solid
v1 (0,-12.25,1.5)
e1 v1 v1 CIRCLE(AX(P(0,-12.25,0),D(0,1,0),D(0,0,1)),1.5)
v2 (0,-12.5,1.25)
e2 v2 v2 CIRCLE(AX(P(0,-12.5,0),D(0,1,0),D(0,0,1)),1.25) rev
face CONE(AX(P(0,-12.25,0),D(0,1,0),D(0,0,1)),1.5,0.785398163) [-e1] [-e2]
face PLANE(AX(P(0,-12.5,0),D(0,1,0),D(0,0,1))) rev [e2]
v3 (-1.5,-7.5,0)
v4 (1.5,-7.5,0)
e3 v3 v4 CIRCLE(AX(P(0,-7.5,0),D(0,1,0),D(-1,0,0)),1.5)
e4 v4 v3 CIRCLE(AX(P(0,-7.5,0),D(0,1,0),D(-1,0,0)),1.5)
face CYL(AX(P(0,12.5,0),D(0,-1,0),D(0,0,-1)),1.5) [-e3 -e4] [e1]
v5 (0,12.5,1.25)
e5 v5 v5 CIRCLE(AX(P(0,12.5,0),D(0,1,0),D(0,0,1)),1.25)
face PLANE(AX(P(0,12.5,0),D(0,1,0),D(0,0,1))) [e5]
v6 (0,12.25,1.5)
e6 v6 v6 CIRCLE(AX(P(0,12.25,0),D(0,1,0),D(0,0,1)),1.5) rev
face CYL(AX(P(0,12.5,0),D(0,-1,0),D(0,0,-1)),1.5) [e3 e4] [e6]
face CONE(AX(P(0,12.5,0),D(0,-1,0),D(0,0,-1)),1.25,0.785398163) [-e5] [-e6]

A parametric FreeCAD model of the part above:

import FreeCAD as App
import Part
import Sketcher


def edges_at(feature, points):
    """Names of the edges that pass closest to the given points."""
    edges = feature.Shape.Edges
    near = lambda p: min(range(len(edges)), key=lambda i: edges[i].distToShape(Part.Vertex(*p))[0])
    return sorted({f"Edge{near(p) + 1}" for p in points})

doc = App.newDocument("Part")
params = doc.addObject("Spreadsheet::Sheet", "Params")
for row, (alias, value) in enumerate([
    ("sketch1_diameter", "3 mm"),
    ("pad1_length", "25 mm"),
    ("chamfer_size", "0.25 mm"),
], start=1):
    params.set(f"A{row}", alias)
    params.set(f"B{row}", "=" + value)
    params.setAlias(f"B{row}", alias)

body = doc.addObject("PartDesign::Body", "Body")

# Sketch on XZ plane
sketch1 = body.newObject("Sketcher::SketchObject", "Sketch")
sketch1.AttachmentSupport = (doc.getObject("XZ_Plane"), [""])
sketch1.MapMode = "FlatFace"
sketch1.addGeometry(Part.Circle(App.Vector(0, 0, 0), App.Vector(0, 0, 1), 1.5), False)
sketch1.addConstraint(Sketcher.Constraint("Coincident", 0, 3, -1, 1))
sketch1.addConstraint(Sketcher.Constraint("Diameter", 0, 3.0))
sketch1.setExpression("Constraints[1]", "Params.sketch1_diameter")
pad1 = body.newObject("PartDesign::Pad", "Pad")
pad1.Profile = sketch1
pad1.setExpression("Length", "Params.pad1_length")
pad1.Midplane = True
doc.recompute()

chamfer = body.newObject("PartDesign::Chamfer", "Chamfer")
chamfer.Base = (pad1, edges_at(pad1, [(0, -12.5, -1.5), (0, 12.5, -1.5)]))
chamfer.setExpression("Size", "Params.chamfer_size")

doc.recompute()
